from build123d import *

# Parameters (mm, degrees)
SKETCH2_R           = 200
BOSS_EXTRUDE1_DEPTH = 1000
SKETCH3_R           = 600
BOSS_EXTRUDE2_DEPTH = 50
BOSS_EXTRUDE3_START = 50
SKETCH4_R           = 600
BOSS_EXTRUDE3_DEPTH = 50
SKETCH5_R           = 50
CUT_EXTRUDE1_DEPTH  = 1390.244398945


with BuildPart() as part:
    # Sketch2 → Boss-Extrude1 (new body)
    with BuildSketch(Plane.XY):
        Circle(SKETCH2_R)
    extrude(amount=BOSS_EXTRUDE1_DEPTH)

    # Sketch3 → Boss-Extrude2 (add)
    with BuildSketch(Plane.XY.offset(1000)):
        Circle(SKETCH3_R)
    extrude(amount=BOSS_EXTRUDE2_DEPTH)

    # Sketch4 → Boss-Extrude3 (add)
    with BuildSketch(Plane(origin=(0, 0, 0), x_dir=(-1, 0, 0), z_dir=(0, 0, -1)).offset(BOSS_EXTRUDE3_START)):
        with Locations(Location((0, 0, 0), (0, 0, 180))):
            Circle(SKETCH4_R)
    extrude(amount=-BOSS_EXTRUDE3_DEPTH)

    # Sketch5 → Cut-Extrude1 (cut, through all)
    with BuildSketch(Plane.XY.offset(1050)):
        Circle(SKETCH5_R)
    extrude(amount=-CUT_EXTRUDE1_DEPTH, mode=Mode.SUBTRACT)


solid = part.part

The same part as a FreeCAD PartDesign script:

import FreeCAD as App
import Part
import Sketcher
from FreeCAD import Vector
Q = App.Units.Quantity

doc = App.newDocument("Part")
body = doc.addObject("PartDesign::Body", "Body")

# Sketch on XY plane
sketch1 = body.newObject("Sketcher::SketchObject", "Sketch")
sketch1.AttachmentSupport = (doc.getObject("XY_Plane"), [""])
sketch1.MapMode = "FlatFace"
sketch1.addGeometry(Part.Circle(Vector(0, 0, 0), Vector(0, 0, 1), 200), False)
sketch1.addConstraint(Sketcher.Constraint("Coincident", 0, 3, -1, 1))
sketch1.addConstraint(Sketcher.Constraint("Diameter", 0, Q("400 mm")))
pad1 = body.newObject("PartDesign::Pad", "Pad")
pad1.Profile = sketch1
pad1.Length = 1000

# Sketch on XY plane
sketch2 = body.newObject("Sketcher::SketchObject", "Sketch001")
sketch2.AttachmentSupport = (doc.getObject("XY_Plane"), [""])
sketch2.MapMode = "FlatFace"
sketch2.AttachmentOffset = App.Placement(Vector(0, 0, 1000), App.Rotation())
sketch2.addGeometry(Part.Circle(Vector(0, 0, 0), Vector(0, 0, 1), 600), False)
sketch2.addConstraint(Sketcher.Constraint("Coincident", 0, 3, -1, 1))
sketch2.addConstraint(Sketcher.Constraint("Diameter", 0, Q("1200 mm")))
pad2 = body.newObject("PartDesign::Pad", "Pad001")
pad2.Profile = sketch2
pad2.Length = 50

# Sketch on XY plane
sketch3 = body.newObject("Sketcher::SketchObject", "Sketch002")
sketch3.AttachmentSupport = (doc.getObject("XY_Plane"), [""])
sketch3.MapMode = "FlatFace"
sketch3.AttachmentOffset = App.Placement(Vector(0, 0, -50), App.Rotation())
sketch3.addGeometry(Part.Circle(Vector(0, 0, 0), Vector(0, 0, 1), 600), False)
sketch3.addConstraint(Sketcher.Constraint("Coincident", 0, 3, -1, 1))
sketch3.addConstraint(Sketcher.Constraint("Diameter", 0, Q("1200 mm")))
pad3 = body.newObject("PartDesign::Pad", "Pad002")
pad3.Profile = sketch3
pad3.Length = 50

# Sketch on XY plane
sketch4 = body.newObject("Sketcher::SketchObject", "Sketch003")
sketch4.AttachmentSupport = (doc.getObject("XY_Plane"), [""])
sketch4.MapMode = "FlatFace"
sketch4.AttachmentOffset = App.Placement(Vector(0, 0, 1050), App.Rotation())
sketch4.addGeometry(Part.Circle(Vector(0, 0, 0), Vector(0, 0, 1), 50), False)
sketch4.addConstraint(Sketcher.Constraint("Coincident", 0, 3, -1, 1))
sketch4.addConstraint(Sketcher.Constraint("Diameter", 0, Q("100 mm")))
pocket1 = body.newObject("PartDesign::Pocket", "Pocket")
pocket1.Profile = sketch4
pocket1.Type = "ThroughAll"

doc.recompute()
